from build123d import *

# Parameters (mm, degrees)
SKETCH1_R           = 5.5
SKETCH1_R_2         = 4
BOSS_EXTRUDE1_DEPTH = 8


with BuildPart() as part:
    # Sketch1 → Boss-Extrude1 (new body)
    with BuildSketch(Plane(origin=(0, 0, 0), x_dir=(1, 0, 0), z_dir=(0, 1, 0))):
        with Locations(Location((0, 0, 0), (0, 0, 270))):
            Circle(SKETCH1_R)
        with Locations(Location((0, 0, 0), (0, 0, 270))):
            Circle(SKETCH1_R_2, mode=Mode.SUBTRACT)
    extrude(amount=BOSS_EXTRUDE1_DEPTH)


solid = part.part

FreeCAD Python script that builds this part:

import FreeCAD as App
import Part
import Sketcher
from FreeCAD import Vector
Q = App.Units.Quantity

doc = App.newDocument("Part")
body = doc.addObject("PartDesign::Body", "Body")

# Sketch on XZ plane
sketch1 = doc.addObject("Sketcher::SketchObject", "Sketch")
body.addObject(sketch1)
sketch1.AttachmentSupport = (doc.XZ_Plane, [""])
sketch1.MapMode = "FlatFace"
sketch1.addGeometry([
    Part.Circle(Vector(0, 0, 0), Vector(0, 0, 1), 5.5),
    Part.Circle(Vector(0, 0, 0), Vector(0, 0, 1), 4),
], False)
sketch1.addConstraint([
    Sketcher.Constraint("Coincident", 0, 3, -1, 1),
    Sketcher.Constraint("Coincident", 1, 3, -1, 1),
    Sketcher.Constraint("Diameter", 0, Q("11 mm")),
    Sketcher.Constraint("Diameter", 1, Q("8 mm")),
])
pad1 = doc.addObject("PartDesign::Pad", "Pad")
body.addObject(pad1)
pad1.Profile = sketch1
pad1.Length = 8
pad1.Reversed = True

doc.recompute()
